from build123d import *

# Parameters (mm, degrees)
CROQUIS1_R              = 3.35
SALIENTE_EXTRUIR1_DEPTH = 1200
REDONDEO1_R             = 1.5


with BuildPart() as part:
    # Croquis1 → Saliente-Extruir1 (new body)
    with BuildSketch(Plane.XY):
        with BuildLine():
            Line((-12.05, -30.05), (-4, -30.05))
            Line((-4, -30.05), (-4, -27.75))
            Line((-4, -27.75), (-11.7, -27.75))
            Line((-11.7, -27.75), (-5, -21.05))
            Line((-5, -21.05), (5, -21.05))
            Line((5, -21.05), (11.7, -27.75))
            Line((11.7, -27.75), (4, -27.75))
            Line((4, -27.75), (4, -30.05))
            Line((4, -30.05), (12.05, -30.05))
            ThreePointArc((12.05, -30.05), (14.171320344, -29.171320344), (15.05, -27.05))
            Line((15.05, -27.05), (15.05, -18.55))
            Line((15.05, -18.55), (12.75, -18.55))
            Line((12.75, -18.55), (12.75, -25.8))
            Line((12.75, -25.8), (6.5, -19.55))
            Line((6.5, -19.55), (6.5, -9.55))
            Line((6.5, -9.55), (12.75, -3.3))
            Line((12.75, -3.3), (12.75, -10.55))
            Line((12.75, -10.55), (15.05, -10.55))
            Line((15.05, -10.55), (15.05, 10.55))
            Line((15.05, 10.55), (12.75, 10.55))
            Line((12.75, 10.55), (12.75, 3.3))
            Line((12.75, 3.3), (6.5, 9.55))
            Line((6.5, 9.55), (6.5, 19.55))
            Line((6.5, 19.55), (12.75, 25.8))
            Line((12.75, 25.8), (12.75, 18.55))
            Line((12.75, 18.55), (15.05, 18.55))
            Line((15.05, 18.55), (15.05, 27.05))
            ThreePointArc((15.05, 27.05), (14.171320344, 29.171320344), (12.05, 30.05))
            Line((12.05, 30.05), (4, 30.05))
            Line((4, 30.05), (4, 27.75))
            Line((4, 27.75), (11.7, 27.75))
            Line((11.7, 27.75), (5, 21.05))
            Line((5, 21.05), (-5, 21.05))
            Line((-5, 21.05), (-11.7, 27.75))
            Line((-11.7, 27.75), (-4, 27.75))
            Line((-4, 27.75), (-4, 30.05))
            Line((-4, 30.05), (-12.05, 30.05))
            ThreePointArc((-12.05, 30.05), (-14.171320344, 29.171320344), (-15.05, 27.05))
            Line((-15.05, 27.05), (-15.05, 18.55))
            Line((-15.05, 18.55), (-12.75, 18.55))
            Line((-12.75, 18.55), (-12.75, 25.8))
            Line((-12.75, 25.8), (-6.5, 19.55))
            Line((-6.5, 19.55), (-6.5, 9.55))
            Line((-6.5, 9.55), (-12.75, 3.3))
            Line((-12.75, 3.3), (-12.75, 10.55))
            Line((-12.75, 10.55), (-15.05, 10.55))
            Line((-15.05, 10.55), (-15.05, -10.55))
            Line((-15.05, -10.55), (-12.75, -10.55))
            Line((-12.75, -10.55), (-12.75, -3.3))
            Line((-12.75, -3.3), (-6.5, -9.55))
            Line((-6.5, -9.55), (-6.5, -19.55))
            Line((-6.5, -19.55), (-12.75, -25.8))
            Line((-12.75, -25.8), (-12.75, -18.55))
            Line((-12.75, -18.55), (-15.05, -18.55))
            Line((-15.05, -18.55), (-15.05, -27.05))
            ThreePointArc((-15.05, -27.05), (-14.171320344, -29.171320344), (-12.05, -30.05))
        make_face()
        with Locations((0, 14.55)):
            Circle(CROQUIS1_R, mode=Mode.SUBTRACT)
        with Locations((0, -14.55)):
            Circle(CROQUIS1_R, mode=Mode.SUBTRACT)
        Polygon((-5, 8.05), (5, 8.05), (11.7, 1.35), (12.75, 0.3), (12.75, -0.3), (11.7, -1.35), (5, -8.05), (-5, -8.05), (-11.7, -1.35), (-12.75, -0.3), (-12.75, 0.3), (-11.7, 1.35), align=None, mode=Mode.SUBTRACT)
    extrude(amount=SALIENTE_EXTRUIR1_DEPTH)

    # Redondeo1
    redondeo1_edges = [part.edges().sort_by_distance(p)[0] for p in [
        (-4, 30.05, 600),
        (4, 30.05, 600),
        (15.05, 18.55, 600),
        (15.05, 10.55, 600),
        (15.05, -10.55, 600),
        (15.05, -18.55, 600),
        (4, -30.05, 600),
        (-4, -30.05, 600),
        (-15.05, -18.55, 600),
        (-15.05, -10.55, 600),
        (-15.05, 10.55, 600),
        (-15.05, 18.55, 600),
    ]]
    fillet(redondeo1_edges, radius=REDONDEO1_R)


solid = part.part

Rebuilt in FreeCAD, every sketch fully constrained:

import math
import FreeCAD as App
import Part
import Sketcher
from FreeCAD import Vector


def edges_at(feature, points):
    """Names of the edges that pass closest to the given points."""
    edges = feature.Shape.Edges
    near = lambda p: min(range(len(edges)), key=lambda i: edges[i].distToShape(Part.Vertex(*p))[0])
    return sorted({f"Edge{near(p) + 1}" for p in points})

doc = App.newDocument("Part")
body = doc.addObject("PartDesign::Body", "Body")

# Sketch on XY plane
sketch1 = body.newObject("Sketcher::SketchObject", "Sketch")
sketch1.AttachmentSupport = (doc.getObject("XY_Plane"), [""])
sketch1.MapMode = "FlatFace"
sketch1.addGeometry(Part.LineSegment(Vector(-12.1, -30.1, 0), Vector(-4, -30.1, 0)), False)
sketch1.addGeometry(Part.LineSegment(Vector(-4, -30.1, 0), Vector(-4, -27.8, 0)), False)
sketch1.addGeometry(Part.LineSegment(Vector(-4, -27.8, 0), Vector(-11.7, -27.8, 0)), False)
sketch1.addGeometry(Part.LineSegment(Vector(-11.7, -27.8, 0), Vector(-5, -21.1, 0)), False)
sketch1.addGeometry(Part.LineSegment(Vector(-5, -21.1, 0), Vector(5, -21.1, 0)), False)
sketch1.addGeometry(Part.LineSegment(Vector(5, -21.1, 0), Vector(11.7, -27.8, 0)), False)
sketch1.addGeometry(Part.LineSegment(Vector(11.7, -27.8, 0), Vector(4, -27.8, 0)), False)
sketch1.addGeometry(Part.LineSegment(Vector(4, -27.8, 0), Vector(4, -30.1, 0)), False)
sketch1.addGeometry(Part.LineSegment(Vector(4, -30.1, 0), Vector(12.1, -30.1, 0)), False)
sketch1.addGeometry(Part.ArcOfCircle(Part.Circle(Vector(12.1, -27.1, 0), Vector(0, 0, 1), 3), math.radians(-90), math.radians(0)), False)
sketch1.addGeometry(Part.LineSegment(Vector(15.1, -27.1, 0), Vector(15.1, -18.6, 0)), False)
sketch1.addGeometry(Part.LineSegment(Vector(15.1, -18.6, 0), Vector(12.8, -18.6, 0)), False)
sketch1.addGeometry(Part.LineSegment(Vector(12.8, -18.6, 0), Vector(12.8, -25.8, 0)), False)
sketch1.addGeometry(Part.LineSegment(Vector(12.8, -25.8, 0), Vector(6.5, -19.6, 0)), False)
sketch1.addGeometry(Part.LineSegment(Vector(6.5, -19.6, 0), Vector(6.5, -9.6, 0)), False)
sketch1.addGeometry(Part.LineSegment(Vector(6.5, -9.6, 0), Vector(12.8, -3.3, 0)), False)
sketch1.addGeometry(Part.LineSegment(Vector(12.8, -3.3, 0), Vector(12.8, -10.6, 0)), False)
sketch1.addGeometry(Part.LineSegment(Vector(12.8, -10.6, 0), Vector(15.1, -10.6, 0)), False)
sketch1.addGeometry(Part.LineSegment(Vector(15.1, -10.6, 0), Vector(15.1, 10.6, 0)), False)
sketch1.addGeometry(Part.LineSegment(Vector(15.1, 10.6, 0), Vector(12.8, 10.6, 0)), False)
sketch1.addGeometry(Part.LineSegment(Vector(12.8, 10.6, 0), Vector(12.8, 3.3, 0)), False)
sketch1.addGeometry(Part.LineSegment(Vector(12.8, 3.3, 0), Vector(6.5, 9.6, 0)), False)
sketch1.addGeometry(Part.LineSegment(Vector(6.5, 9.6, 0), Vector(6.5, 19.6, 0)), False)
sketch1.addGeometry(Part.LineSegment(Vector(6.5, 19.6, 0), Vector(12.8, 25.8, 0)), False)
sketch1.addGeometry(Part.LineSegment(Vector(12.8, 25.8, 0), Vector(12.8, 18.6, 0)), False)
sketch1.addGeometry(Part.LineSegment(Vector(12.8, 18.6, 0), Vector(15.1, 18.6, 0)), False)
sketch1.addGeometry(Part.LineSegment(Vector(15.1, 18.6, 0), Vector(15.1, 27.1, 0)), False)
sketch1.addGeometry(Part.ArcOfCircle(Part.Circle(Vector(12.1, 27.1, 0), Vector(0, 0, 1), 3), math.radians(0), math.radians(90)), False)
sketch1.addGeometry(Part.LineSegment(Vector(12.1, 30.1, 0), Vector(4, 30.1, 0)), False)
sketch1.addGeometry(Part.LineSegment(Vector(4, 30.1, 0), Vector(4, 27.8, 0)), False)
sketch1.addGeometry(Part.LineSegment(Vector(4, 27.8, 0), Vector(11.7, 27.8, 0)), False)
sketch1.addGeometry(Part.LineSegment(Vector(11.7, 27.8, 0), Vector(5, 21.1, 0)), False)
sketch1.addGeometry(Part.LineSegment(Vector(5, 21.1, 0), Vector(-5, 21.1, 0)), False)
sketch1.addGeometry(Part.LineSegment(Vector(-5, 21.1, 0), Vector(-11.7, 27.8, 0)), False)
sketch1.addGeometry(Part.LineSegment(Vector(-11.7, 27.8, 0), Vector(-4, 27.8, 0)), False)
sketch1.addGeometry(Part.LineSegment(Vector(-4, 27.8, 0), Vector(-4, 30.1, 0)), False)
sketch1.addGeometry(Part.LineSegment(Vector(-4, 30.1, 0), Vector(-12.1, 30.1, 0)), False)
sketch1.addGeometry(Part.ArcOfCircle(Part.Circle(Vector(-12.1, 27.1, 0), Vector(0, 0, 1), 3), math.radians(90), math.radians(180)), False)
sketch1.addGeometry(Part.LineSegment(Vector(-15.1, 27.1, 0), Vector(-15.1, 18.6, 0)), False)
sketch1.addGeometry(Part.LineSegment(Vector(-15.1, 18.6, 0), Vector(-12.8, 18.6, 0)), False)
sketch1.addGeometry(Part.LineSegment(Vector(-12.8, 18.6, 0), Vector(-12.8, 25.8, 0)), False)
sketch1.addGeometry(Part.LineSegment(Vector(-12.8, 25.8, 0), Vector(-6.5, 19.6, 0)), False)
sketch1.addGeometry(Part.LineSegment(Vector(-6.5, 19.6, 0), Vector(-6.5, 9.6, 0)), False)
sketch1.addGeometry(Part.LineSegment(Vector(-6.5, 9.6, 0), Vector(-12.8, 3.3, 0)), False)
sketch1.addGeometry(Part.LineSegment(Vector(-12.8, 3.3, 0), Vector(-12.8, 10.6, 0)), False)
sketch1.addGeometry(Part.LineSegment(Vector(-12.8, 10.6, 0), Vector(-15.1, 10.6, 0)), False)
sketch1.addGeometry(Part.LineSegment(Vector(-15.1, 10.6, 0), Vector(-15.1, -10.6, 0)), False)
sketch1.addGeometry(Part.LineSegment(Vector(-15.1, -10.6, 0), Vector(-12.8, -10.6, 0)), False)
sketch1.addGeometry(Part.LineSegment(Vector(-12.8, -10.6, 0), Vector(-12.8, -3.3, 0)), False)
sketch1.addGeometry(Part.LineSegment(Vector(-12.8, -3.3, 0), Vector(-6.5, -9.6, 0)), False)
sketch1.addGeometry(Part.LineSegment(Vector(-6.5, -9.6, 0), Vector(-6.5, -19.6, 0)), False)
sketch1.addGeometry(Part.LineSegment(Vector(-6.5, -19.6, 0), Vector(-12.8, -25.8, 0)), False)
sketch1.addGeometry(Part.LineSegment(Vector(-12.8, -25.8, 0), Vector(-12.8, -18.6, 0)), False)
sketch1.addGeometry(Part.LineSegment(Vector(-12.8, -18.6, 0), Vector(-15.1, -18.6, 0)), False)
sketch1.addGeometry(Part.LineSegment(Vector(-15.1, -18.6, 0), Vector(-15.1, -27.1, 0)), False)
sketch1.addGeometry(Part.ArcOfCircle(Part.Circle(Vector(-12.1, -27.1, 0), Vector(0, 0, 1), 3), math.radians(180), math.radians(270)), False)
sketch1.addGeometry(Part.Circle(Vector(0, -14.6, 0), Vector(0, 0, 1), 3.4), False)
sketch1.addGeometry(Part.LineSegment(Vector(-12.8, 0.3, 0), Vector(-5, 8.1, 0)), False)
sketch1.addGeometry(Part.LineSegment(Vector(-5, 8.1, 0), Vector(5, 8.1, 0)), False)
sketch1.addGeometry(Part.LineSegment(Vector(5, 8.1, 0), Vector(12.8, 0.3, 0)), False)
sketch1.addGeometry(Part.LineSegment(Vector(12.8, 0.3, 0), Vector(12.8, -0.3, 0)), False)
sketch1.addGeometry(Part.LineSegment(Vector(12.8, -0.3, 0), Vector(5, -8.1, 0)), False)
sketch1.addGeometry(Part.LineSegment(Vector(5, -8.1, 0), Vector(-5, -8.1, 0)), False)
sketch1.addGeometry(Part.LineSegment(Vector(-5, -8.1, 0), Vector(-12.8, -0.3, 0)), False)
sketch1.addGeometry(Part.LineSegment(Vector(-12.8, -0.3, 0), Vector(-12.8, 0.3, 0)), False)
sketch1.addGeometry(Part.Circle(Vector(0, 14.6, 0), Vector(0, 0, 1), 3.4), False)
sketch1.addConstraint(Sketcher.Constraint("Coincident", 0, 2, 1, 1))
sketch1.addConstraint(Sketcher.Constraint("Coincident", 1, 2, 2, 1))
sketch1.addConstraint(Sketcher.Constraint("Coincident", 2, 2, 3, 1))
sketch1.addConstraint(Sketcher.Constraint("Coincident", 3, 2, 4, 1))
sketch1.addConstraint(Sketcher.Constraint("Coincident", 4, 2, 5, 1))
sketch1.addConstraint(Sketcher.Constraint("Coincident", 5, 2, 6, 1))
sketch1.addConstraint(Sketcher.Constraint("Coincident", 6, 2, 7, 1))
sketch1.addConstraint(Sketcher.Constraint("Coincident", 7, 2, 8, 1))
sketch1.addConstraint(Sketcher.Constraint("Tangent", 8, 2, 9, 1))
sketch1.addConstraint(Sketcher.Constraint("Tangent", 9, 2, 10, 1))
sketch1.addConstraint(Sketcher.Constraint("Coincident", 10, 2, 11, 1))
sketch1.addConstraint(Sketcher.Constraint("Coincident", 11, 2, 12, 1))
sketch1.addConstraint(Sketcher.Constraint("Coincident", 12, 2, 13, 1))
sketch1.addConstraint(Sketcher.Constraint("Coincident", 13, 2, 14, 1))
sketch1.addConstraint(Sketcher.Constraint("Coincident", 14, 2, 15, 1))
sketch1.addConstraint(Sketcher.Constraint("Coincident", 15, 2, 16, 1))
sketch1.addConstraint(Sketcher.Constraint("Coincident", 16, 2, 17, 1))
sketch1.addConstraint(Sketcher.Constraint("Coincident", 17, 2, 18, 1))
sketch1.addConstraint(Sketcher.Constraint("Coincident", 18, 2, 19, 1))
sketch1.addConstraint(Sketcher.Constraint("Coincident", 19, 2, 20, 1))
sketch1.addConstraint(Sketcher.Constraint("Coincident", 20, 2, 21, 1))
sketch1.addConstraint(Sketcher.Constraint("Coincident", 21, 2, 22, 1))
sketch1.addConstraint(Sketcher.Constraint("Coincident", 22, 2, 23, 1))
sketch1.addConstraint(Sketcher.Constraint("Coincident", 23, 2, 24, 1))
sketch1.addConstraint(Sketcher.Constraint("Coincident", 24, 2, 25, 1))
sketch1.addConstraint(Sketcher.Constraint("Coincident", 25, 2, 26, 1))
sketch1.addConstraint(Sketcher.Constraint("Tangent", 26, 2, 27, 1))
sketch1.addConstraint(Sketcher.Constraint("Tangent", 27, 2, 28, 1))
sketch1.addConstraint(Sketcher.Constraint("Coincident", 28, 2, 29, 1))
sketch1.addConstraint(Sketcher.Constraint("Coincident", 29, 2, 30, 1))
sketch1.addConstraint(Sketcher.Constraint("Coincident", 30, 2, 31, 1))
sketch1.addConstraint(Sketcher.Constraint("Coincident", 31, 2, 32, 1))
sketch1.addConstraint(Sketcher.Constraint("Coincident", 32, 2, 33, 1))
sketch1.addConstraint(Sketcher.Constraint("Coincident", 33, 2, 34, 1))
sketch1.addConstraint(Sketcher.Constraint("Coincident", 34, 2, 35, 1))
sketch1.addConstraint(Sketcher.Constraint("Coincident", 35, 2, 36, 1))
sketch1.addConstraint(Sketcher.Constraint("Tangent", 36, 2, 37, 1))
sketch1.addConstraint(Sketcher.Constraint("Tangent", 37, 2, 38, 1))
sketch1.addConstraint(Sketcher.Constraint("Coincident", 38, 2, 39, 1))
sketch1.addConstraint(Sketcher.Constraint("Coincident", 39, 2, 40, 1))
sketch1.addConstraint(Sketcher.Constraint("Coincident", 40, 2, 41, 1))
sketch1.addConstraint(Sketcher.Constraint("Coincident", 41, 2, 42, 1))
sketch1.addConstraint(Sketcher.Constraint("Coincident", 42, 2, 43, 1))
sketch1.addConstraint(Sketcher.Constraint("Coincident", 43, 2, 44, 1))
sketch1.addConstraint(Sketcher.Constraint("Coincident", 44, 2, 45, 1))
sketch1.addConstraint(Sketcher.Constraint("Coincident", 45, 2, 46, 1))
sketch1.addConstraint(Sketcher.Constraint("Coincident", 46, 2, 47, 1))
sketch1.addConstraint(Sketcher.Constraint("Coincident", 47, 2, 48, 1))
sketch1.addConstraint(Sketcher.Constraint("Coincident", 48, 2, 49, 1))
sketch1.addConstraint(Sketcher.Constraint("Coincident", 49, 2, 50, 1))
sketch1.addConstraint(Sketcher.Constraint("Coincident", 50, 2, 51, 1))
sketch1.addConstraint(Sketcher.Constraint("Coincident", 51, 2, 52, 1))
sketch1.addConstraint(Sketcher.Constraint("Coincident", 52, 2, 53, 1))
sketch1.addConstraint(Sketcher.Constraint("Coincident", 53, 2, 54, 1))
sketch1.addConstraint(Sketcher.Constraint("Tangent", 54, 2, 55, 1))
sketch1.addConstraint(Sketcher.Constraint("Tangent", 55, 2, 0, 1))
sketch1.addConstraint(Sketcher.Constraint("Coincident", 57, 2, 58, 1))
sketch1.addConstraint(Sketcher.Constraint("Coincident", 58, 2, 59, 1))
sketch1.addConstraint(Sketcher.Constraint("Coincident", 59, 2, 60, 1))
sketch1.addConstraint(Sketcher.Constraint("Coincident", 60, 2, 61, 1))
sketch1.addConstraint(Sketcher.Constraint("Coincident", 61, 2, 62, 1))
sketch1.addConstraint(Sketcher.Constraint("Coincident", 62, 2, 63, 1))
sketch1.addConstraint(Sketcher.Constraint("Coincident", 63, 2, 64, 1))
sketch1.addConstraint(Sketcher.Constraint("Coincident", 64, 2, 57, 1))
sketch1.addConstraint(Sketcher.Constraint("Horizontal", 0))
sketch1.addConstraint(Sketcher.Constraint("Vertical", 1))
sketch1.addConstraint(Sketcher.Constraint("Horizontal", 2))
sketch1.addConstraint(Sketcher.Constraint("Horizontal", 4))
sketch1.addConstraint(Sketcher.Constraint("Horizontal", 6))
sketch1.addConstraint(Sketcher.Constraint("Vertical", 7))
sketch1.addConstraint(Sketcher.Constraint("Horizontal", 8))
sketch1.addConstraint(Sketcher.Constraint("Vertical", 10))
sketch1.addConstraint(Sketcher.Constraint("Horizontal", 11))
sketch1.addConstraint(Sketcher.Constraint("Vertical", 12))
sketch1.addConstraint(Sketcher.Constraint("Vertical", 14))
sketch1.addConstraint(Sketcher.Constraint("Vertical", 16))
sketch1.addConstraint(Sketcher.Constraint("Horizontal", 17))
sketch1.addConstraint(Sketcher.Constraint("Vertical", 18))
sketch1.addConstraint(Sketcher.Constraint("Horizontal", 19))
sketch1.addConstraint(Sketcher.Constraint("Vertical", 20))
sketch1.addConstraint(Sketcher.Constraint("Vertical", 22))
sketch1.addConstraint(Sketcher.Constraint("Vertical", 24))
sketch1.addConstraint(Sketcher.Constraint("Horizontal", 25))
sketch1.addConstraint(Sketcher.Constraint("Vertical", 26))
sketch1.addConstraint(Sketcher.Constraint("Horizontal", 28))
sketch1.addConstraint(Sketcher.Constraint("Vertical", 29))
sketch1.addConstraint(Sketcher.Constraint("Horizontal", 30))
sketch1.addConstraint(Sketcher.Constraint("Horizontal", 32))
sketch1.addConstraint(Sketcher.Constraint("Horizontal", 34))
sketch1.addConstraint(Sketcher.Constraint("Vertical", 35))
sketch1.addConstraint(Sketcher.Constraint("Horizontal", 36))
sketch1.addConstraint(Sketcher.Constraint("Vertical", 38))
sketch1.addConstraint(Sketcher.Constraint("Horizontal", 39))
sketch1.addConstraint(Sketcher.Constraint("Vertical", 40))
sketch1.addConstraint(Sketcher.Constraint("Vertical", 42))
sketch1.addConstraint(Sketcher.Constraint("Vertical", 44))
sketch1.addConstraint(Sketcher.Constraint("Horizontal", 45))
sketch1.addConstraint(Sketcher.Constraint("Vertical", 46))
sketch1.addConstraint(Sketcher.Constraint("Horizontal", 47))
sketch1.addConstraint(Sketcher.Constraint("Vertical", 48))
sketch1.addConstraint(Sketcher.Constraint("Vertical", 50))
sketch1.addConstraint(Sketcher.Constraint("Vertical", 52))
sketch1.addConstraint(Sketcher.Constraint("Horizontal", 53))
sketch1.addConstraint(Sketcher.Constraint("Vertical", 54))
sketch1.addConstraint(Sketcher.Constraint("Horizontal", 58))
sketch1.addConstraint(Sketcher.Constraint("Vertical", 60))
sketch1.addConstraint(Sketcher.Constraint("Horizontal", 62))
sketch1.addConstraint(Sketcher.Constraint("Vertical", 64))
sketch1.addConstraint(Sketcher.Constraint("Equal", 9, 27))
sketch1.addConstraint(Sketcher.Constraint("Equal", 27, 37))
sketch1.addConstraint(Sketcher.Constraint("Equal", 37, 55))
sketch1.addConstraint(Sketcher.Constraint("Equal", 56, 65))
sketch1.addConstraint(Sketcher.Constraint("Symmetric", 9, 3, 37, 3, -1, 1))
sketch1.addConstraint(Sketcher.Constraint("Symmetric", 27, 3, 55, 3, -1, 1))
sketch1.addConstraint(Sketcher.Constraint("Symmetric", 56, 3, 65, 3, -1, 1))
sketch1.addConstraint(Sketcher.Constraint("Symmetric", 1, 2, 29, 2, -1, 1))
sketch1.addConstraint(Sketcher.Constraint("Symmetric", 3, 2, 31, 2, -1, 1))
sketch1.addConstraint(Sketcher.Constraint("Symmetric", 5, 2, 33, 2, -1, 1))
sketch1.addConstraint(Sketcher.Constraint("Symmetric", 11, 2, 39, 2, -1, 1))
sketch1.addConstraint(Sketcher.Constraint("Symmetric", 13, 2, 41, 2, -1, 1))
sketch1.addConstraint(Sketcher.Constraint("Symmetric", 15, 2, 43, 2, -1, 1))
sketch1.addConstraint(Sketcher.Constraint("Symmetric", 17, 2, 45, 2, -1, 1))
sketch1.addConstraint(Sketcher.Constraint("Symmetric", 19, 2, 47, 2, -1, 1))
sketch1.addConstraint(Sketcher.Constraint("Symmetric", 21, 2, 49, 2, -1, 1))
sketch1.addConstraint(Sketcher.Constraint("Symmetric", 23, 2, 51, 2, -1, 1))
sketch1.addConstraint(Sketcher.Constraint("Symmetric", 57, 2, 61, 2, -1, 1))
sketch1.addConstraint(Sketcher.Constraint("Symmetric", 59, 2, 63, 2, -1, 1))
sketch1.addConstraint(Sketcher.Constraint("Symmetric", 27, 3, 37, 3, -2))
sketch1.addConstraint(Sketcher.Constraint("Symmetric", 2, 2, 5, 2, -2))
sketch1.addConstraint(Sketcher.Constraint("Symmetric", 24, 2, 39, 2, -2))
sketch1.addConstraint(Sketcher.Constraint("Symmetric", 22, 2, 41, 2, -2))
sketch1.addConstraint(Sketcher.Constraint("Symmetric", 20, 2, 43, 2, -2))
sketch1.addConstraint(Sketcher.Constraint("PointOnObject", 56, 3, -2))
sketch1.addConstraint(Sketcher.Constraint("Perpendicular", 3, 5))
sketch1.addConstraint(Sketcher.Constraint("Parallel", 5, 13))
sketch1.addConstraint(Sketcher.Constraint("Perpendicular", 13, 15))
sketch1.addConstraint(Sketcher.Constraint("Perpendicular", 15, 21))
sketch1.addConstraint(Sketcher.Constraint("Perpendicular", 21, 23))
sketch1.addConstraint(Sketcher.Constraint("Parallel", 23, 31))
sketch1.addConstraint(Sketcher.Constraint("Perpendicular", 31, 33))
sketch1.addConstraint(Sketcher.Constraint("Parallel", 33, 41))
sketch1.addConstraint(Sketcher.Constraint("Perpendicular", 41, 43))
sketch1.addConstraint(Sketcher.Constraint("Perpendicular", 43, 49))
sketch1.addConstraint(Sketcher.Constraint("Perpendicular", 49, 51))
sketch1.addConstraint(Sketcher.Constraint("Parallel", 51, 57))
sketch1.addConstraint(Sketcher.Constraint("Perpendicular", 57, 59))
sketch1.addConstraint(Sketcher.Constraint("Perpendicular", 59, 61))
sketch1.addConstraint(Sketcher.Constraint("Perpendicular", 61, 63))
sketch1.addConstraint(Sketcher.Constraint("Horizontal", 23, 2, 40, 2))
sketch1.addConstraint(Sketcher.Constraint("Horizontal", 19, 2, 44, 2))
sketch1.addConstraint(Sketcher.Constraint("Horizontal", 11, 2, 52, 2))
sketch1.addConstraint(Sketcher.Constraint("Horizontal", 60, 2, 63, 2))
sketch1.addConstraint(Sketcher.Constraint("Vertical", 12, 2, 15, 2))
sketch1.addConstraint(Sketcher.Constraint("Vertical", 10, 2, 17, 2))
sketch1.addConstraint(Sketcher.Constraint("Vertical", 7, 2, 28, 2))
sketch1.addConstraint(Sketcher.Constraint("Vertical", 1, 2, 34, 2))
sketch1.addConstraint(Sketcher.Constraint("Vertical", 32, 2, 57, 2))
sketch1.addConstraint(Sketcher.Constraint("Vertical", 24, 2, 59, 2))
sketch1.addConstraint(Sketcher.Constraint("Equal", 53, 1))
sketch1.addConstraint(Sketcher.Constraint("Equal", 62, 14))
sketch1.addConstraint(Sketcher.Constraint("Equal", 12, 16))
sketch1.addConstraint(Sketcher.Constraint("Radius", 9, 3.0))
sketch1.addConstraint(Sketcher.Constraint("Diameter", 56, 6.7))
sketch1.addConstraint(Sketcher.Constraint("DistanceX", 4, 1, 4, 2, 10.0))
sketch1.addConstraint(Sketcher.Constraint("DistanceX", 2, 2, 2, 1, 7.7))
sketch1.addConstraint(Sketcher.Constraint("DistanceX", 11, 2, 11, 1, 2.3))
sketch1.addConstraint(Sketcher.Constraint("DistanceY", 10, 1, 10, 2, 8.5))
sketch1.addConstraint(Sketcher.Constraint("DistanceY", 18, 1, 18, 2, 21.1))
sketch1.addConstraint(Sketcher.Constraint("DistanceY", 60, 2, 60, 1, 0.6))
sketch1.addConstraint(Sketcher.Constraint("DistanceX", 0, 2, -1, 1, 4.0))
sketch1.addConstraint(Sketcher.Constraint("DistanceX", 0, 1, 0, 2, 8.05))
sketch1.addConstraint(Sketcher.Constraint("DistanceY", 12, 2, 12, 1, 7.25))
sketch1.addConstraint(Sketcher.Constraint("DistanceY", 12, 2, -1, 1, 25.8))
sketch1.addConstraint(Sketcher.Constraint("DistanceY", 56, 3, -1, 1, 14.55))
pad1 = body.newObject("PartDesign::Pad", "Pad")
pad1.Profile = sketch1
pad1.Length = 1200
doc.recompute()

fillet = body.newObject("PartDesign::Fillet", "Fillet")
fillet.Base = (pad1, edges_at(pad1, [
    (-4, 30.05, 600),
    (4, 30.05, 600),
    (15.05, 18.55, 600),
    (15.05, 10.55, 600),
    (15.05, -10.55, 600),
    (15.05, -18.55, 600),
    (4, -30.05, 600),
    (-4, -30.05, 600),
    (-15.05, -18.55, 600),
    (-15.05, -10.55, 600),
    (-15.05, 10.55, 600),
    (-15.05, 18.55, 600),
]))
fillet.Radius = 1.5

doc.recompute()
